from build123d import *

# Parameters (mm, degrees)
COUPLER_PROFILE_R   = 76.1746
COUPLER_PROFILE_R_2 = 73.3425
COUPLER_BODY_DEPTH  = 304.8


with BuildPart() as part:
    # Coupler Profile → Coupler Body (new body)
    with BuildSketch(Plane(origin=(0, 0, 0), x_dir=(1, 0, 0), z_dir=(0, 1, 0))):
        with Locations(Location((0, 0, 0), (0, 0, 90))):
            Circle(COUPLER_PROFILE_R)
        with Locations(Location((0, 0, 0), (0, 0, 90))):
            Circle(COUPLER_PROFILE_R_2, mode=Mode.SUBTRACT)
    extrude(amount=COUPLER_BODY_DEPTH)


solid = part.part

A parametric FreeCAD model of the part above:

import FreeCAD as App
import Part
import Sketcher
from FreeCAD import Vector
Q = App.Units.Quantity

doc = App.newDocument("Part")
body = doc.addObject("PartDesign::Body", "Body")

# Sketch on XZ plane
sketch1 = body.newObject("Sketcher::SketchObject", "Sketch")
sketch1.AttachmentSupport = (doc.getObject("XZ_Plane"), [""])
sketch1.MapMode = "FlatFace"
sketch1.addGeometry([
    Part.Circle(Vector(0, 0, 0), Vector(0, 0, 1), 76.1746),
    Part.Circle(Vector(0, 0, 0), Vector(0, 0, 1), 73.3425),
], False)
sketch1.addConstraint([
    Sketcher.Constraint("Coincident", 0, 3, -1, 1),
    Sketcher.Constraint("Coincident", 1, 3, -1, 1),
    Sketcher.Constraint("Diameter", 0, Q("5.998 in")),
    Sketcher.Constraint("Diameter", 1, Q("5.775 in")),
])
pad1 = body.newObject("PartDesign::Pad", "Pad")
pad1.Profile = sketch1
pad1.Length = Q("12 in")
pad1.Reversed = True

doc.recompute()
